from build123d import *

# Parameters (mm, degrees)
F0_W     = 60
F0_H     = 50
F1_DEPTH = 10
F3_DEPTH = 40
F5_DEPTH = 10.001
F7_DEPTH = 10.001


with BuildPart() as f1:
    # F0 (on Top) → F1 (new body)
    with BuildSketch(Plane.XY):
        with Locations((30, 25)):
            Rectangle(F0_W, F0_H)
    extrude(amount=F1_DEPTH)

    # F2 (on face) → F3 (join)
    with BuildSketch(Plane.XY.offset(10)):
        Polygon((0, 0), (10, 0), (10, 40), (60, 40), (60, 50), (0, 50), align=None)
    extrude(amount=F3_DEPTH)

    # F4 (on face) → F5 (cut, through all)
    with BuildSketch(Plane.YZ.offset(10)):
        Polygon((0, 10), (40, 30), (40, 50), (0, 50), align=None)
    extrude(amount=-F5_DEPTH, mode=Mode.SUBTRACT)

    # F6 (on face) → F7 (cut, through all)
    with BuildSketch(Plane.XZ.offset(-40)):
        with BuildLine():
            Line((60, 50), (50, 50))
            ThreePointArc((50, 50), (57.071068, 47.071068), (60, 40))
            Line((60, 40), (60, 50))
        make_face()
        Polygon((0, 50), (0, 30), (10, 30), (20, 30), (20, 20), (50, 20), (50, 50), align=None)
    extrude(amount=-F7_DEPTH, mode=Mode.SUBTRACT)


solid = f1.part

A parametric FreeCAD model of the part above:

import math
import FreeCAD as App
import Part
import Sketcher
from FreeCAD import Vector
Q = App.Units.Quantity


def add_polygon(sketch, points):
    """Adds a closed chain of lines whose ends are joined by coincident constraints."""
    first, n = sketch.GeometryCount, len(points)
    for a, b in zip(points, points[1:] + points[:1]):
        sketch.addGeometry(Part.LineSegment(App.Vector(*a, 0), App.Vector(*b, 0)), False)
    for i in range(n):
        sketch.addConstraint(Sketcher.Constraint("Coincident", first + i, 2, first + (i + 1) % n, 1))

doc = App.newDocument("Part")
body = doc.addObject("PartDesign::Body", "Body")

sketch1 = body.newObject("Sketcher::SketchObject", "Sketch")
sketch1.AttachmentSupport = (doc.getObject("XY_Plane"), [""])
sketch1.MapMode = "FlatFace"
add_polygon(sketch1, [(0, 50), (0, 0), (60, 0), (60, 50)])
sketch1.addConstraint(Sketcher.Constraint("Vertical", 0))
sketch1.addConstraint(Sketcher.Constraint("Horizontal", 1))
sketch1.addConstraint(Sketcher.Constraint("Vertical", 2))
sketch1.addConstraint(Sketcher.Constraint("Horizontal", 3))
sketch1.addConstraint(Sketcher.Constraint("Coincident", 0, 2, -1, 1))
sketch1.addConstraint(Sketcher.Constraint("DistanceX", 1, 1, 1, 2, Q("60 mm")))
sketch1.addConstraint(Sketcher.Constraint("DistanceY", 0, 2, 0, 1, Q("50 mm")))
pad1 = body.newObject("PartDesign::Pad", "Pad")
pad1.Profile = sketch1
pad1.Length = 10

sketch2 = body.newObject("Sketcher::SketchObject", "Sketch001")
sketch2.AttachmentSupport = (doc.getObject("XY_Plane"), [""])
sketch2.MapMode = "FlatFace"
sketch2.AttachmentOffset = App.Placement(Vector(0, 0, 10), App.Rotation())
add_polygon(sketch2, [(0, 0), (10, 0), (10, 40), (60, 40), (60, 50), (0, 50)])
sketch2.addConstraint(Sketcher.Constraint("Horizontal", 0))
sketch2.addConstraint(Sketcher.Constraint("Vertical", 1))
sketch2.addConstraint(Sketcher.Constraint("Horizontal", 2))
sketch2.addConstraint(Sketcher.Constraint("Vertical", 3))
sketch2.addConstraint(Sketcher.Constraint("Horizontal", 4))
sketch2.addConstraint(Sketcher.Constraint("Vertical", 5))
sketch2.addConstraint(Sketcher.Constraint("Coincident", 5, 2, -1, 1))
sketch2.addConstraint(Sketcher.Constraint("Equal", 0, 3))
sketch2.addConstraint(Sketcher.Constraint("Equal", 2, 5))
sketch2.addConstraint(Sketcher.Constraint("DistanceX", 0, 1, 0, 2, Q("10 mm")))
sketch2.addConstraint(Sketcher.Constraint("DistanceX", 2, 1, 2, 2, Q("50 mm")))
pad2 = body.newObject("PartDesign::Pad", "Pad001")
pad2.Profile = sketch2
pad2.Length = 40

sketch3 = body.newObject("Sketcher::SketchObject", "Sketch002")
sketch3.AttachmentSupport = (doc.getObject("YZ_Plane"), [""])
sketch3.MapMode = "FlatFace"
sketch3.AttachmentOffset = App.Placement(Vector(0, 0, 10), App.Rotation())
add_polygon(sketch3, [(0, 10), (40, 30), (40, 50), (0, 50)])
sketch3.addConstraint(Sketcher.Constraint("Vertical", 1))
sketch3.addConstraint(Sketcher.Constraint("Horizontal", 2))
sketch3.addConstraint(Sketcher.Constraint("Vertical", 3))
sketch3.addConstraint(Sketcher.Constraint("PointOnObject", 2, 2, -2))
sketch3.addConstraint(Sketcher.Constraint("Equal", 2, 3))
sketch3.addConstraint(Sketcher.Constraint("DistanceX", 2, 2, 2, 1, Q("40 mm")))
sketch3.addConstraint(Sketcher.Constraint("DistanceY", 1, 1, 1, 2, Q("20 mm")))
sketch3.addConstraint(Sketcher.Constraint("DistanceY", -1, 1, 0, 2, Q("30 mm")))
pocket1 = body.newObject("PartDesign::Pocket", "Pocket")
pocket1.Profile = sketch3
pocket1.Type = "ThroughAll"

sketch4 = body.newObject("Sketcher::SketchObject", "Sketch003")
sketch4.AttachmentSupport = (doc.getObject("XZ_Plane"), [""])
sketch4.MapMode = "FlatFace"
sketch4.AttachmentOffset = App.Placement(Vector(0, 0, -40), App.Rotation())
sketch4.addGeometry(Part.LineSegment(Vector(60, 50, 0), Vector(50, 50, 0)), False)
sketch4.addGeometry(Part.ArcOfCircle(Part.Circle(Vector(50, 40, 0), Vector(0, 0, 1), 10), math.radians(0), math.radians(90)), False)
sketch4.addGeometry(Part.LineSegment(Vector(60, 40, 0), Vector(60, 50, 0)), False)
add_polygon(sketch4, [(0, 50), (0, 30), (20, 30), (20, 20), (50, 20), (50, 50)])
sketch4.addConstraint(Sketcher.Constraint("Tangent", 0, 2, 1, 2))
sketch4.addConstraint(Sketcher.Constraint("Tangent", 1, 1, 2, 1))
sketch4.addConstraint(Sketcher.Constraint("Coincident", 2, 2, 0, 1))
sketch4.addConstraint(Sketcher.Constraint("Horizontal", 0))
sketch4.addConstraint(Sketcher.Constraint("Vertical", 2))
sketch4.addConstraint(Sketcher.Constraint("Vertical", 3))
sketch4.addConstraint(Sketcher.Constraint("Horizontal", 4))
sketch4.addConstraint(Sketcher.Constraint("Vertical", 5))
sketch4.addConstraint(Sketcher.Constraint("Horizontal", 6))
sketch4.addConstraint(Sketcher.Constraint("Vertical", 7))
sketch4.addConstraint(Sketcher.Constraint("Horizontal", 8))
sketch4.addConstraint(Sketcher.Constraint("Coincident", 7, 2, 0, 2))
sketch4.addConstraint(Sketcher.Constraint("PointOnObject", 3, 2, -2))
sketch4.addConstraint(Sketcher.Constraint("Equal", 4, 3))
sketch4.addConstraint(Sketcher.Constraint("Equal", 2, 5))
sketch4.addConstraint(Sketcher.Constraint("Equal", 6, 7))
sketch4.addConstraint(Sketcher.Constraint("Radius", 1, Q("9.999999 mm")))
sketch4.addConstraint(Sketcher.Constraint("DistanceX", 4, 1, 4, 2, Q("20 mm")))
sketch4.addConstraint(Sketcher.Constraint("DistanceY", -1, 1, 1, 3, Q("40.000001 mm")))
pocket2 = body.newObject("PartDesign::Pocket", "Pocket001")
pocket2.Profile = sketch4
pocket2.Type = "ThroughAll"

doc.recompute()
